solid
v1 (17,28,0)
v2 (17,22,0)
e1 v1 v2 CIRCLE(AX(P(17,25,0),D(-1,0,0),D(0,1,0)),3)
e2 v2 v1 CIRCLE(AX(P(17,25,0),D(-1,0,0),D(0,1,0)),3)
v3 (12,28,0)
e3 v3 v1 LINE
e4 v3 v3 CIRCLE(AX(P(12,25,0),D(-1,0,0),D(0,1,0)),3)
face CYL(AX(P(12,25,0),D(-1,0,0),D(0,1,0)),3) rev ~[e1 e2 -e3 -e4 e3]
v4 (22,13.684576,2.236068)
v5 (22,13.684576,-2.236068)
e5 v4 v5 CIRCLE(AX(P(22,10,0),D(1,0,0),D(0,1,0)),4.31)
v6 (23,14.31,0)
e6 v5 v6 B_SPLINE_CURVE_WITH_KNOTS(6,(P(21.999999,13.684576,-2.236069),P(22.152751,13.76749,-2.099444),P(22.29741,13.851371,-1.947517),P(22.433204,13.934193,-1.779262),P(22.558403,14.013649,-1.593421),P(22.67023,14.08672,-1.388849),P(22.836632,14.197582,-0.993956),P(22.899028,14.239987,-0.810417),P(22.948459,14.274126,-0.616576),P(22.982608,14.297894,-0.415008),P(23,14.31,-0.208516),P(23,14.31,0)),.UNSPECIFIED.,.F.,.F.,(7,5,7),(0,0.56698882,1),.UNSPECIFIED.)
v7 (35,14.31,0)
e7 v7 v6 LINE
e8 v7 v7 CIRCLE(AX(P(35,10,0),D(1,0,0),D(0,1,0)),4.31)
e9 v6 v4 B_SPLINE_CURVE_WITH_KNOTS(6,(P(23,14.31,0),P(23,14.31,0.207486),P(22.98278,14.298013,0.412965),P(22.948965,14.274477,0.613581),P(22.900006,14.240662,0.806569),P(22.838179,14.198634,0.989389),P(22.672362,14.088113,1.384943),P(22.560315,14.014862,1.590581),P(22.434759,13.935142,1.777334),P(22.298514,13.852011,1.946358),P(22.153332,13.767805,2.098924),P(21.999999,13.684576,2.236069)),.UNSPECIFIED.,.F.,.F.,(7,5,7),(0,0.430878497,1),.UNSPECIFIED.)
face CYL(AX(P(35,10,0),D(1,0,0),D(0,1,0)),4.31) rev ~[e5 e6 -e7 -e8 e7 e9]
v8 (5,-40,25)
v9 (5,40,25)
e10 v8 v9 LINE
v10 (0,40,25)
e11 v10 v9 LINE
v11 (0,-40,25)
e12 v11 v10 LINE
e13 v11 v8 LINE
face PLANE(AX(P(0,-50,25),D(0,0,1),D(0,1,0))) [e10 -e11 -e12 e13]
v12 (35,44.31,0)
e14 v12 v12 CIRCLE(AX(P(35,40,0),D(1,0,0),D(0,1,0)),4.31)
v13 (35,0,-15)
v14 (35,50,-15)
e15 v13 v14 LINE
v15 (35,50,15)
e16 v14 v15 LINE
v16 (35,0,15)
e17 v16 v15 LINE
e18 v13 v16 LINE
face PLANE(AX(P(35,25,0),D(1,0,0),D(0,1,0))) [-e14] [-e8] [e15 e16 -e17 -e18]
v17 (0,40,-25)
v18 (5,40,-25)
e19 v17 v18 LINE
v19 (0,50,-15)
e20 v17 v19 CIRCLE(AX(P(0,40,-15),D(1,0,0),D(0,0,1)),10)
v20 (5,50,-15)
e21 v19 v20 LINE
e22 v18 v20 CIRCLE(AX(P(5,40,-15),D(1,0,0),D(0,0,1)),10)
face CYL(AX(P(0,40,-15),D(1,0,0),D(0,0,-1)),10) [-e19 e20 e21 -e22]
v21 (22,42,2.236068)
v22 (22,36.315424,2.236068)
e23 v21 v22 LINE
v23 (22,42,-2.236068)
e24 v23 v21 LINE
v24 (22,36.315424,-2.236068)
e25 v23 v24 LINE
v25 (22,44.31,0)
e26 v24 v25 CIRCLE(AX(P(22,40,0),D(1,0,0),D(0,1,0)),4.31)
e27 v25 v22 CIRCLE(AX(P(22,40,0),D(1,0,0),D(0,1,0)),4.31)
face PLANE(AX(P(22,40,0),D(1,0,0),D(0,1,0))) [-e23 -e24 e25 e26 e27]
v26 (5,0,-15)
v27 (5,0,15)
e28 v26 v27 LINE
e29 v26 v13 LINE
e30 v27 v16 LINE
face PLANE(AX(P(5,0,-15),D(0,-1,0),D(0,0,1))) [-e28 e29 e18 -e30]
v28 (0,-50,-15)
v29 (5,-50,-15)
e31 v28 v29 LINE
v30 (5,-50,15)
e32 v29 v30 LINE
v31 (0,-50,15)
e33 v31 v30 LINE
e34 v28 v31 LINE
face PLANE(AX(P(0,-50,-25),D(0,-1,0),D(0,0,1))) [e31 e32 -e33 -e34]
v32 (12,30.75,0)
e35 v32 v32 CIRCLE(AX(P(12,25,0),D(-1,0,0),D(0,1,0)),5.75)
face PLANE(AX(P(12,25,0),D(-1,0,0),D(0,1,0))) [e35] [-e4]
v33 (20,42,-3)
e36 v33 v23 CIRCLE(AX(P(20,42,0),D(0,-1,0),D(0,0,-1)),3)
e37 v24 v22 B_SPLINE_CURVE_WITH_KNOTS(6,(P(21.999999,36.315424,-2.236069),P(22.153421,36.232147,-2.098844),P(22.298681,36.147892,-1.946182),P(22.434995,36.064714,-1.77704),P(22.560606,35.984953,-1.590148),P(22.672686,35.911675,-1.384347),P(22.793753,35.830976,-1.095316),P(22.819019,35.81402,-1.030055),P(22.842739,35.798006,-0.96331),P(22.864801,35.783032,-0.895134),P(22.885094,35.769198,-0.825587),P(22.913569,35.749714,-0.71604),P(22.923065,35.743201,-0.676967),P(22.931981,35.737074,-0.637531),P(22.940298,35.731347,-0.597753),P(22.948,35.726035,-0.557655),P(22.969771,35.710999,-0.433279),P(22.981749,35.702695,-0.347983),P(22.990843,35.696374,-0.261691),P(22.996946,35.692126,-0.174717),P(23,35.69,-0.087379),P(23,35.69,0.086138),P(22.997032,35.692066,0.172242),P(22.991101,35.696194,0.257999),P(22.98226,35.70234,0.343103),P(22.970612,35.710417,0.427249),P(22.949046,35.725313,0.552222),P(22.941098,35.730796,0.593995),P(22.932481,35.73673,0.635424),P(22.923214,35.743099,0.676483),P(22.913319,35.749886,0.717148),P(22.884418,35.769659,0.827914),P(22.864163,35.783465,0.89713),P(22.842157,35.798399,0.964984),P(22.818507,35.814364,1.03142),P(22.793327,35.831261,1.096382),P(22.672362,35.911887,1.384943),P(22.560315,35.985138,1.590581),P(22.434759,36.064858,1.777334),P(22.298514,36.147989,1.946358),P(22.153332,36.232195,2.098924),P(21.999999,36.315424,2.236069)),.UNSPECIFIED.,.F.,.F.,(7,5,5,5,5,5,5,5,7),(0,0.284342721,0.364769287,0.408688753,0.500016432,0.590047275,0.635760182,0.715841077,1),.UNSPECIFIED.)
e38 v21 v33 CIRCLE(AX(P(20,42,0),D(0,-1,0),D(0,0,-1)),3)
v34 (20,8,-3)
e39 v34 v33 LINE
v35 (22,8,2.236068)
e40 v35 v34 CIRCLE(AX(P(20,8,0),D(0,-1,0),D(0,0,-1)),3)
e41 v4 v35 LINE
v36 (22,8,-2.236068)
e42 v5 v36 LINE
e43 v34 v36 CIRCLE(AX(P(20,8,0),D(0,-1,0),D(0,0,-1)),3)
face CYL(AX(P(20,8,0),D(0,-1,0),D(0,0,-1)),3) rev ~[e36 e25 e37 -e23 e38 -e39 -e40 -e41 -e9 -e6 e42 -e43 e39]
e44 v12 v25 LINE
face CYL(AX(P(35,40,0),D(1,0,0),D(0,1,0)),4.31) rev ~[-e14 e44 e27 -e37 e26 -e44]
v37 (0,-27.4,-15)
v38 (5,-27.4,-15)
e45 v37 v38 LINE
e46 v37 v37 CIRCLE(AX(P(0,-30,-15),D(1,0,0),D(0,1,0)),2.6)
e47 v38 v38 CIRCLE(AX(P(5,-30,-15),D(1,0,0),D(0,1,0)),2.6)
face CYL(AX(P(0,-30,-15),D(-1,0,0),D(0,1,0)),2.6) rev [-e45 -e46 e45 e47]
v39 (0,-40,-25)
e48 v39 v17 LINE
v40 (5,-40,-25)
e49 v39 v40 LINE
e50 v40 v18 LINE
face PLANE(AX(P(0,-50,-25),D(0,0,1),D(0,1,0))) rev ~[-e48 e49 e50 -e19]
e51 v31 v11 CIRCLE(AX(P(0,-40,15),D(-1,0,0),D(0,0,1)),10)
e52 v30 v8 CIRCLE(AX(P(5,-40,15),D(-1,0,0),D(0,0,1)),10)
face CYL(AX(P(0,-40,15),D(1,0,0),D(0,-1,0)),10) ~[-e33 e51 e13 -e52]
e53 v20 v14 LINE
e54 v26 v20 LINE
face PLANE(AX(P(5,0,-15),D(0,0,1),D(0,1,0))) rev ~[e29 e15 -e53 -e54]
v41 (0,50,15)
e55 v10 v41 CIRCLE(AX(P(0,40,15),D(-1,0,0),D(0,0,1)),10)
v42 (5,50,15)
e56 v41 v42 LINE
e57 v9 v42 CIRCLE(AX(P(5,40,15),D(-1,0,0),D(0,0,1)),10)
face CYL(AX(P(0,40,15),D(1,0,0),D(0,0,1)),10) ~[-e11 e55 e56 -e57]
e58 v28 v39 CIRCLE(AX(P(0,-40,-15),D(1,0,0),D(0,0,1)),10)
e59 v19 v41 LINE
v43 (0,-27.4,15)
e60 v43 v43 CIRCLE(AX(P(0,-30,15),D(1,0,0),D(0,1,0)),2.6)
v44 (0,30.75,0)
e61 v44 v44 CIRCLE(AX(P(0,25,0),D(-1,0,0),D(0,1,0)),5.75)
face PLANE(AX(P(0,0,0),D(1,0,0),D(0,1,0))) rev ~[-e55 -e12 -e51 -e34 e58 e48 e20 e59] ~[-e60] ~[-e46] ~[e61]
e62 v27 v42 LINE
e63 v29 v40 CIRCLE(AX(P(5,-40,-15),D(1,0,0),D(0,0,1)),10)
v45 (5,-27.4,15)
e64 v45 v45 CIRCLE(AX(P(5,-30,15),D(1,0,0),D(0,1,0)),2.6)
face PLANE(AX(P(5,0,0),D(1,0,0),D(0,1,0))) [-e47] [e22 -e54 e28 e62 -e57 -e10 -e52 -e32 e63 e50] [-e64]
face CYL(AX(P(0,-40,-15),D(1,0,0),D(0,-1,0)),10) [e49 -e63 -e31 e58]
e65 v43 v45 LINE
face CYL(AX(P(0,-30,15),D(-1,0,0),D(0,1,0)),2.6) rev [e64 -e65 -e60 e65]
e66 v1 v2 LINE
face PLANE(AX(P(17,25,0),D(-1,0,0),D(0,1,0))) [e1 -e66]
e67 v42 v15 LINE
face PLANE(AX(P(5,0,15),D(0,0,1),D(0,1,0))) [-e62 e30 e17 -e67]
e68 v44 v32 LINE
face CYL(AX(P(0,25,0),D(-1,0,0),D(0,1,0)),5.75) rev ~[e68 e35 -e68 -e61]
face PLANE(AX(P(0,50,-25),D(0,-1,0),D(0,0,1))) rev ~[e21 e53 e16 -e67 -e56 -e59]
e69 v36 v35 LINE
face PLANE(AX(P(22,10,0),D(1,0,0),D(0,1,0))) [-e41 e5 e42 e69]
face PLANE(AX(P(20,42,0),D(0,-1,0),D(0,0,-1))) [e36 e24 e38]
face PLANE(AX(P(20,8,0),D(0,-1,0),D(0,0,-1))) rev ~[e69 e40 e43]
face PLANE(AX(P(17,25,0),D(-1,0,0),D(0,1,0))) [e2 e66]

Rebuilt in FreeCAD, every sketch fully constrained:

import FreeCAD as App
import Part
import Sketcher

V = App.Vector


def edges_at(feature, points):
    """Names of the edges that pass closest to the given points."""
    edges = feature.Shape.Edges
    near = lambda p: min(range(len(edges)), key=lambda i: edges[i].distToShape(Part.Vertex(*p))[0])
    return sorted({f"Edge{near(p) + 1}" for p in points})

doc = App.newDocument("Part")
body = doc.addObject("PartDesign::Body", "Body")

sketch1 = body.newObject("Sketcher::SketchObject", "Sketch")
sketch1.AttachmentSupport = (doc.getObject("YZ_Plane"), [""])
sketch1.MapMode = "FlatFace"
sketch1.addGeometry([
    Part.LineSegment(V(-50, 25, 0), V(-50, -25, 0)),
    Part.LineSegment(V(-50, -25, 0), V(50, -25, 0)),
    Part.LineSegment(V(50, -25, 0), V(50, 25, 0)),
    Part.LineSegment(V(50, 25, 0), V(-50, 25, 0)),
    Part.Circle(V(-30, -15, 0), V(0, 0, 1), 2.6),
    Part.Circle(V(-30, 15, 0), V(0, 0, 1), 2.6),
], False)
sketch1.addConstraint([
    Sketcher.Constraint("Coincident", 0, 2, 1, 1),
    Sketcher.Constraint("Coincident", 1, 2, 2, 1),
    Sketcher.Constraint("Coincident", 2, 2, 3, 1),
    Sketcher.Constraint("Coincident", 3, 2, 0, 1),
    Sketcher.Constraint("Vertical", 0),
    Sketcher.Constraint("Horizontal", 1),
    Sketcher.Constraint("Vertical", 2),
    Sketcher.Constraint("Horizontal", 3),
    Sketcher.Constraint("Equal", 4, 5),
    Sketcher.Constraint("Symmetric", 0, 2, 2, 2, -1, 1),
    Sketcher.Constraint("Symmetric", 4, 3, 5, 3, -1),
    Sketcher.Constraint("Diameter", 4, 5.2),
    Sketcher.Constraint("DistanceX", 1, 1, 1, 2, 100.0),
    Sketcher.Constraint("DistanceY", 0, 2, 0, 1, 50.0),
    Sketcher.Constraint("DistanceX", 4, 3, -1, 1, 30.0),
    Sketcher.Constraint("DistanceY", 4, 3, -1, 1, 15.0),
])
pad1 = body.newObject("PartDesign::Pad", "Pad")
pad1.Profile = sketch1
pad1.Length = 5

sketch2 = body.newObject("Sketcher::SketchObject", "Sketch001")
sketch2.AttachmentSupport = (doc.getObject("YZ_Plane"), [""])
sketch2.MapMode = "FlatFace"
sketch2.AttachmentOffset = App.Placement(V(0, 0, 5), App.Rotation())
sketch2.addGeometry([
    Part.LineSegment(V(0, 15, 0), V(0, -15, 0)),
    Part.LineSegment(V(0, -15, 0), V(50, -15, 0)),
    Part.LineSegment(V(50, -15, 0), V(50, 15, 0)),
    Part.LineSegment(V(50, 15, 0), V(0, 15, 0)),
], False)
sketch2.addConstraint([
    Sketcher.Constraint("Coincident", 0, 2, 1, 1),
    Sketcher.Constraint("Coincident", 1, 2, 2, 1),
    Sketcher.Constraint("Coincident", 2, 2, 3, 1),
    Sketcher.Constraint("Coincident", 3, 2, 0, 1),
    Sketcher.Constraint("Vertical", 0),
    Sketcher.Constraint("Horizontal", 1),
    Sketcher.Constraint("Vertical", 2),
    Sketcher.Constraint("Horizontal", 3),
    Sketcher.Constraint("Symmetric", 0, 2, 3, 2, -1, 1),
    Sketcher.Constraint("DistanceX", 1, 1, 1, 2, 50.0),
    Sketcher.Constraint("DistanceY", 0, 2, 0, 1, 30.0),
])
pad2 = body.newObject("PartDesign::Pad", "Pad001")
pad2.Profile = sketch2
pad2.Length = 30

sketch3 = body.newObject("Sketcher::SketchObject", "Sketch002")
sketch3.AttachmentSupport = (doc.getObject("YZ_Plane"), [""])
sketch3.MapMode = "FlatFace"
sketch3.addGeometry(Part.Circle(V(25, 0, 0), V(0, 0, 1), 5.75), False)
sketch3.addConstraint([
    Sketcher.Constraint("PointOnObject", 0, 3, -1),
    Sketcher.Constraint("Diameter", 0, 11.5),
    Sketcher.Constraint("DistanceX", -1, 1, 0, 3, 25.0),
])
pocket1 = body.newObject("PartDesign::Pocket", "Pocket")
pocket1.Profile = sketch3
pocket1.Length = 12
pocket1.Reversed = True

sketch4 = body.newObject("Sketcher::SketchObject", "Sketch003")
sketch4.AttachmentSupport = (doc.getObject("XZ_Plane"), [""])
sketch4.MapMode = "FlatFace"
sketch4.AttachmentOffset = App.Placement(V(0, 0, -8), App.Rotation())
sketch4.addGeometry(Part.Circle(V(20, 0, 0), V(0, 0, 1), 3), False)
sketch4.addConstraint([
    Sketcher.Constraint("PointOnObject", 0, 3, -1),
    Sketcher.Constraint("Diameter", 0, 6.0),
    Sketcher.Constraint("DistanceX", -1, 1, 0, 3, 20.0),
])
pocket2 = body.newObject("PartDesign::Pocket", "Pocket001")
pocket2.Profile = sketch4
pocket2.Length = 34

sketch5 = body.newObject("Sketcher::SketchObject", "Sketch004")
sketch5.AttachmentSupport = (doc.getObject("YZ_Plane"), [""])
sketch5.MapMode = "FlatFace"
sketch5.AttachmentOffset = App.Placement(V(0, 0, 12), App.Rotation())
sketch5.addGeometry(Part.Circle(V(25, 0, 0), V(0, 0, 1), 3), False)
sketch5.addConstraint([
    Sketcher.Constraint("PointOnObject", 0, 3, -1),
    Sketcher.Constraint("Diameter", 0, 6.0),
    Sketcher.Constraint("DistanceX", -1, 1, 0, 3, 25.0),
])
pocket3 = body.newObject("PartDesign::Pocket", "Pocket002")
pocket3.Profile = sketch5
pocket3.Length = 5
pocket3.Reversed = True

sketch6 = body.newObject("Sketcher::SketchObject", "Sketch005")
sketch6.AttachmentSupport = (doc.getObject("YZ_Plane"), [""])
sketch6.MapMode = "FlatFace"
sketch6.AttachmentOffset = App.Placement(V(0, 0, 35), App.Rotation())
sketch6.addGeometry([
    Part.Circle(V(10, 0, 0), V(0, 0, 1), 4.31),
    Part.Circle(V(40, 0, 0), V(0, 0, 1), 4.31),
], False)
sketch6.addConstraint([
    Sketcher.Constraint("Equal", 0, 1),
    Sketcher.Constraint("PointOnObject", 0, 3, -1),
    Sketcher.Constraint("PointOnObject", 1, 3, -1),
    Sketcher.Constraint("Diameter", 0, 8.62),
    Sketcher.Constraint("DistanceX", -1, 1, 0, 3, 10.0),
    Sketcher.Constraint("DistanceX", -1, 1, 1, 3, 40.0),
])
pocket4 = body.newObject("PartDesign::Pocket", "Pocket003")
pocket4.Profile = sketch6
pocket4.Length = 13
doc.recompute()

fillet = body.newObject("PartDesign::Fillet", "Fillet")
fillet.Base = (pocket4, edges_at(pocket4, [
    (2.5, -50, 25),
    (2.5, 50, -25),
    (2.5, 50, 25),
    (2.5, -50, -25),
]))
fillet.Radius = 10

doc.recompute()
